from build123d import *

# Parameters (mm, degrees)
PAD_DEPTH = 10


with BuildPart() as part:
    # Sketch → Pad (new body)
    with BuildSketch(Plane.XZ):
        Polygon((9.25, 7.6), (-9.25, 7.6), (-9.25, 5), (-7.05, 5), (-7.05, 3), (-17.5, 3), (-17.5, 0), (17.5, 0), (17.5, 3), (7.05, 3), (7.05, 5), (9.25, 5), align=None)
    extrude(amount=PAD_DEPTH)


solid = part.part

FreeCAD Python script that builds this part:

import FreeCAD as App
import Part
import Sketcher
Q = App.Units.Quantity


def add_polygon(sketch, points):
    """Adds a closed chain of lines whose ends are joined by coincident constraints."""
    first, n = sketch.GeometryCount, len(points)
    for a, b in zip(points, points[1:] + points[:1]):
        sketch.addGeometry(Part.LineSegment(App.Vector(*a, 0), App.Vector(*b, 0)), False)
    for i in range(n):
        sketch.addConstraint(Sketcher.Constraint("Coincident", first + i, 2, first + (i + 1) % n, 1))

doc = App.newDocument("Part")
body = doc.addObject("PartDesign::Body", "Body")

# Sketch on XZ plane
sketch1 = body.newObject("Sketcher::SketchObject", "Sketch")
sketch1.AttachmentSupport = (doc.getObject("XZ_Plane"), [""])
sketch1.MapMode = "FlatFace"
add_polygon(sketch1, [(9.2, 7.6), (-9.2, 7.6), (-9.2, 5), (-7, 5), (-7, 3), (-17.5, 3), (-17.5, 0), (17.5, 0), (17.5, 3), (7, 3), (7, 5), (9.2, 5)])  # lines 0-11
sketch1.addConstraint(Sketcher.Constraint("Horizontal", 0))
sketch1.addConstraint(Sketcher.Constraint("Vertical", 1))
sketch1.addConstraint(Sketcher.Constraint("Horizontal", 2))
sketch1.addConstraint(Sketcher.Constraint("Vertical", 3))
sketch1.addConstraint(Sketcher.Constraint("Horizontal", 4))
sketch1.addConstraint(Sketcher.Constraint("Vertical", 5))
sketch1.addConstraint(Sketcher.Constraint("Horizontal", 6))
sketch1.addConstraint(Sketcher.Constraint("Vertical", 7))
sketch1.addConstraint(Sketcher.Constraint("Horizontal", 8))
sketch1.addConstraint(Sketcher.Constraint("Vertical", 9))
sketch1.addConstraint(Sketcher.Constraint("Horizontal", 10))
sketch1.addConstraint(Sketcher.Constraint("Vertical", 11))
sketch1.addConstraint(Sketcher.Constraint("Symmetric", 5, 2, 6, 2, -1, 1))
sketch1.addConstraint(Sketcher.Constraint("Symmetric", 3, 2, 8, 2, -2))
sketch1.addConstraint(Sketcher.Constraint("Symmetric", 1, 2, 10, 2, -2))
sketch1.addConstraint(Sketcher.Constraint("DistanceX", 6, 1, 6, 2, Q("35 mm")))
sketch1.addConstraint(Sketcher.Constraint("DistanceY", 3, 2, 3, 1, Q("2 mm")))
sketch1.addConstraint(Sketcher.Constraint("DistanceY", 5, 2, 5, 1, Q("3 mm")))
sketch1.addConstraint(Sketcher.Constraint("DistanceX", 0, 2, 0, 1, Q("18.5 mm")))
sketch1.addConstraint(Sketcher.Constraint("DistanceX", 2, 1, 2, 2, Q("2.2 mm")))
sketch1.addConstraint(Sketcher.Constraint("DistanceY", 1, 2, 1, 1, Q("2.6 mm")))
pad1 = body.newObject("PartDesign::Pad", "Pad")
pad1.Profile = sketch1
pad1.Length = 10

doc.recompute()
